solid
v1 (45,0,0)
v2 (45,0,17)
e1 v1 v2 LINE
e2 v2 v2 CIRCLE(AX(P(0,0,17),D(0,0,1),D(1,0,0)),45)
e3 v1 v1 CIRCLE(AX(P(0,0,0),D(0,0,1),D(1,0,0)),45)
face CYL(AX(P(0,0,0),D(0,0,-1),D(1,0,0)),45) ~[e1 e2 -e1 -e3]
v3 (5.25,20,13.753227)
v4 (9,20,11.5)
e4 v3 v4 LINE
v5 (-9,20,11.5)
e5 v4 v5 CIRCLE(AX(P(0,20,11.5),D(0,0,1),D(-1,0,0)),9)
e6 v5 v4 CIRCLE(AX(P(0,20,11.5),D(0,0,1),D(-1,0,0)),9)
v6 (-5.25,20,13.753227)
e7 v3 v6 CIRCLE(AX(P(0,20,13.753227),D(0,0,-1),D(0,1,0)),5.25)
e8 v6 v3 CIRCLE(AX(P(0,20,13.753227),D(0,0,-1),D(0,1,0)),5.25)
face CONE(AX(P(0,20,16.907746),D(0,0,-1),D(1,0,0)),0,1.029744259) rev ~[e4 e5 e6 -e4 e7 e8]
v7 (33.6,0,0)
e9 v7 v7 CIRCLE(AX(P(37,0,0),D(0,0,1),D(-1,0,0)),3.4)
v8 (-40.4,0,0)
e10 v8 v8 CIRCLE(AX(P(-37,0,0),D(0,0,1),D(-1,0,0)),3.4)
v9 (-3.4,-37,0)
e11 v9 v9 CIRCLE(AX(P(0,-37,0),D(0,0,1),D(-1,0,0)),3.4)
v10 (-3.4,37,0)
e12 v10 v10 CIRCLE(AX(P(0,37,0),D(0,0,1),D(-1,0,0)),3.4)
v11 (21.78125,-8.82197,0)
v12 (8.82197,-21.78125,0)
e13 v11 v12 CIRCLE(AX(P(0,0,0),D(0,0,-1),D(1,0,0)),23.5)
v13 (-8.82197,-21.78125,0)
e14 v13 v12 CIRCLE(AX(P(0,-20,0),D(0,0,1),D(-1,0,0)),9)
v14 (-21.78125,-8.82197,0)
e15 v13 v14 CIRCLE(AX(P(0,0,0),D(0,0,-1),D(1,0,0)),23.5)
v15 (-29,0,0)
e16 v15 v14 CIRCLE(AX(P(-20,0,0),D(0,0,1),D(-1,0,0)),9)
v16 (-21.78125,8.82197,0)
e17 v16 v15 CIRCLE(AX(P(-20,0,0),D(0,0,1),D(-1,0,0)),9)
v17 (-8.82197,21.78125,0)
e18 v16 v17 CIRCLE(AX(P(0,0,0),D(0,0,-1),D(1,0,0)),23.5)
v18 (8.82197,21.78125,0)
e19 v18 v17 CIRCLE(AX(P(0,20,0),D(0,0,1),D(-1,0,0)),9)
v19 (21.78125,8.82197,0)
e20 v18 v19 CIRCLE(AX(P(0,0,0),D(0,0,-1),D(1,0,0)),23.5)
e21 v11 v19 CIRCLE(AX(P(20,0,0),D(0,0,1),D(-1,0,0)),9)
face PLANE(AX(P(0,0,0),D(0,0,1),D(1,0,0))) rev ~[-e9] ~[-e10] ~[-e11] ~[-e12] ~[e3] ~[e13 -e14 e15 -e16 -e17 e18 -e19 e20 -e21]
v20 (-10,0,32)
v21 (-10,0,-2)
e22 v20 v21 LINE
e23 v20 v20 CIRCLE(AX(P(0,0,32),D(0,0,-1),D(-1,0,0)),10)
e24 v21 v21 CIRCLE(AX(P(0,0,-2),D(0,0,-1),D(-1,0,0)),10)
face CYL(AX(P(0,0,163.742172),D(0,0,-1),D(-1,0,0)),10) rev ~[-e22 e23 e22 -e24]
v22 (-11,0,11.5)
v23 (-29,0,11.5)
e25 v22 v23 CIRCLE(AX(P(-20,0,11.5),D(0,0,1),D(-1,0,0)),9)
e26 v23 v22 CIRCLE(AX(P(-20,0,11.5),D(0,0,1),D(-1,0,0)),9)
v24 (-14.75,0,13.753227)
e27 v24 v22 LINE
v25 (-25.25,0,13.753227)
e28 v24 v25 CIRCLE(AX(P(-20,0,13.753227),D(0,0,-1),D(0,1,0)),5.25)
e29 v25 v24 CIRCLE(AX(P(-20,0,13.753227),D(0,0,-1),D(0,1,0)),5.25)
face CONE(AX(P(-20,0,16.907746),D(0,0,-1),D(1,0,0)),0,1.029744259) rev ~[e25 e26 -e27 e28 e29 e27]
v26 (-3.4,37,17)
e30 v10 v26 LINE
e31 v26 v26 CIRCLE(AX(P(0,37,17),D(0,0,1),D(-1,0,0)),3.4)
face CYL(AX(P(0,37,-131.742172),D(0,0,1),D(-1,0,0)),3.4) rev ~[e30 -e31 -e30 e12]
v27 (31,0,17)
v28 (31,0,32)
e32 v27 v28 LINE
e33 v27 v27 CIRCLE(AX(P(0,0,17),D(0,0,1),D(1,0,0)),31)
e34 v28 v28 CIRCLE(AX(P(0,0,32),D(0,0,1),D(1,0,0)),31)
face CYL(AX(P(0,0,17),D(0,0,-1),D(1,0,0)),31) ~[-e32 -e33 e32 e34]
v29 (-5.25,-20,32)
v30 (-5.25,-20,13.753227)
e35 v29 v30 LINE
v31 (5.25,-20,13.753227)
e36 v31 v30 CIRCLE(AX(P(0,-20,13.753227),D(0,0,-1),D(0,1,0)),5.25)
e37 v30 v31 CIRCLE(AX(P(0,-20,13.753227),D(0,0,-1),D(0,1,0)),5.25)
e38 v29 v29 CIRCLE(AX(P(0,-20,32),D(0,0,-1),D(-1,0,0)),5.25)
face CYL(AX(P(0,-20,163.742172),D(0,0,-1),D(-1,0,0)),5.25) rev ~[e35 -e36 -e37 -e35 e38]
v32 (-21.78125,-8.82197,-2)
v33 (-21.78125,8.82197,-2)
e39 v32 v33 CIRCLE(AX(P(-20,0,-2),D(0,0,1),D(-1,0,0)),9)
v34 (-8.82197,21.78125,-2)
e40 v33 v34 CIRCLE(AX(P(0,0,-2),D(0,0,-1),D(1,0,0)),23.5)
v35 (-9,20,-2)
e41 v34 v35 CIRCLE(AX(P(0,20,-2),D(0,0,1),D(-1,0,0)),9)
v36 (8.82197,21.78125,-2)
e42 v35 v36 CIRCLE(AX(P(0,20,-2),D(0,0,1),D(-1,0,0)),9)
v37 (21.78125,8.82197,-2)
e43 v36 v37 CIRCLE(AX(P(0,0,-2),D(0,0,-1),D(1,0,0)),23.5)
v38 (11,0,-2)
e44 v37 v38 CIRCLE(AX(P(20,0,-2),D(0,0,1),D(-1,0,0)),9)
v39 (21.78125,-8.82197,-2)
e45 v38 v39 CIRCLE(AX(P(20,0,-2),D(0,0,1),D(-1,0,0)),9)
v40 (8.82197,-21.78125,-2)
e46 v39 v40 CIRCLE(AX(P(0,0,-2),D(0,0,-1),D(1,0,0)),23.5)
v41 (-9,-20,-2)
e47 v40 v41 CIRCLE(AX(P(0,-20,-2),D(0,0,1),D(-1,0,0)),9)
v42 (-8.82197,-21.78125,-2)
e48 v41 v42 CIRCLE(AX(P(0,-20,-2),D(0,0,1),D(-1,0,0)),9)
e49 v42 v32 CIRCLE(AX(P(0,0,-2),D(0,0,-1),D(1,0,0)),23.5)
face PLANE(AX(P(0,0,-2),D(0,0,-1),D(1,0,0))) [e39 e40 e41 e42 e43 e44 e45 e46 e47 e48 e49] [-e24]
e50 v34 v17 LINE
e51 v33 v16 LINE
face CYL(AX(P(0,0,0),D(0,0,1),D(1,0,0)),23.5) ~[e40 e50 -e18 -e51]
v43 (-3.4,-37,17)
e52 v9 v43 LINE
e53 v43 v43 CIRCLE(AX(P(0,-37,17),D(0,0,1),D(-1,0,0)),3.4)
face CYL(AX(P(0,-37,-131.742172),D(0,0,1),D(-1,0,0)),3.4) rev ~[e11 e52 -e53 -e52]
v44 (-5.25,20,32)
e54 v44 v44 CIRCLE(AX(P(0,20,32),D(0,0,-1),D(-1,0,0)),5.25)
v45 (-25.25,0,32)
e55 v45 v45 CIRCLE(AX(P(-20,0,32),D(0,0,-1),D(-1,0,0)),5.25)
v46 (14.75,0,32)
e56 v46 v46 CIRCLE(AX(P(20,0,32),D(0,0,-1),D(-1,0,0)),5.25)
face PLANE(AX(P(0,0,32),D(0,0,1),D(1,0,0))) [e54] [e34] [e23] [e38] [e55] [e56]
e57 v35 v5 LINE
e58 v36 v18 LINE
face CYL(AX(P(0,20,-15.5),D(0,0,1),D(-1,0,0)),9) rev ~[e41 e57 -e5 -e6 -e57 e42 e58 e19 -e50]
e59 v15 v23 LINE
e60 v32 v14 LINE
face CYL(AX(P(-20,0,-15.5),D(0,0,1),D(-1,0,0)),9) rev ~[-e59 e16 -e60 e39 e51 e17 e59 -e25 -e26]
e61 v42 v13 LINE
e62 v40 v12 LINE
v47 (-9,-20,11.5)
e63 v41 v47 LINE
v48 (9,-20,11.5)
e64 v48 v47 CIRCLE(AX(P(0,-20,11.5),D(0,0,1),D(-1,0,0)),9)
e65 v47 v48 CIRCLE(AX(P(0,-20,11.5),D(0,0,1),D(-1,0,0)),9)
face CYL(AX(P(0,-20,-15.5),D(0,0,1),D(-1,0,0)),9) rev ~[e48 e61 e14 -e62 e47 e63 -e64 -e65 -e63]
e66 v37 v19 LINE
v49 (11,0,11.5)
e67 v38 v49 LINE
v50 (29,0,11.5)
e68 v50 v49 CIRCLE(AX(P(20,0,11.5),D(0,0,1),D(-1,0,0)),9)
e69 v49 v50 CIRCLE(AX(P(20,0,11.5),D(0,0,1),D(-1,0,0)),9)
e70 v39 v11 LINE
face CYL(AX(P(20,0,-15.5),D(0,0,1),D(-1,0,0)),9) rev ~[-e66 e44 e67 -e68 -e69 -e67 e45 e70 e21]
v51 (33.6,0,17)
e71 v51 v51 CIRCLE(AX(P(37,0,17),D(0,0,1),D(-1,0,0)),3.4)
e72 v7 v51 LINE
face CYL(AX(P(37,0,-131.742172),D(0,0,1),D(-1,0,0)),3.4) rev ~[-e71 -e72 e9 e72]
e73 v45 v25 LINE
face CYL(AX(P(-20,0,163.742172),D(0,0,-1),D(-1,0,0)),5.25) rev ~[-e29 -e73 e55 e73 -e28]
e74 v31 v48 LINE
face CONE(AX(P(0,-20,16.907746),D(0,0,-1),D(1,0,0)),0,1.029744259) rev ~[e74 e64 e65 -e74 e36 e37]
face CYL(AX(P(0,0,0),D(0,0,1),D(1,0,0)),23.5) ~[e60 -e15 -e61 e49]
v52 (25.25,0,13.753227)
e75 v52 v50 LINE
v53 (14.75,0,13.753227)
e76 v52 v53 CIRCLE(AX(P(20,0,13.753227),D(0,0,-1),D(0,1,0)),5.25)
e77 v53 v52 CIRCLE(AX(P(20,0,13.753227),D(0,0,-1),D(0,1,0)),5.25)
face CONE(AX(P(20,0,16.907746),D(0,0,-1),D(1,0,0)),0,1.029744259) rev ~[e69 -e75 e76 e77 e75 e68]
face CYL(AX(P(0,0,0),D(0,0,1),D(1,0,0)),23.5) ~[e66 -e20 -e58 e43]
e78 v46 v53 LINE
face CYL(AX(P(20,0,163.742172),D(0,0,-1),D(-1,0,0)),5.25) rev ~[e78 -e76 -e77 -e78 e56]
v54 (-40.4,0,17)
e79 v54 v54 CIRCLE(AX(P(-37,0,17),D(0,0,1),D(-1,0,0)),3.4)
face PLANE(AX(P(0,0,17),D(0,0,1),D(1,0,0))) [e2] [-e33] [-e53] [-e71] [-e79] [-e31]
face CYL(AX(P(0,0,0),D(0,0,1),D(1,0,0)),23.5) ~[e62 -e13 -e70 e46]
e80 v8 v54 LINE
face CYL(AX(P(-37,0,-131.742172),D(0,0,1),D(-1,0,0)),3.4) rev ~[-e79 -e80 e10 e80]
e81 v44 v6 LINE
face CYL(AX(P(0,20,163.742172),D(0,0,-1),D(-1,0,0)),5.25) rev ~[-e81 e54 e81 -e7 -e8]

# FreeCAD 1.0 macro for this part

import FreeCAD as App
import Part
import Sketcher

V = App.Vector
Q = App.Units.Quantity

doc = App.newDocument("Part")
body = doc.addObject("PartDesign::Body", "Body")

# Sketch on XY plane
sketch1 = body.newObject("Sketcher::SketchObject", "Sketch")
sketch1.AttachmentSupport = (doc.getObject("XY_Plane"), [""])
sketch1.MapMode = "FlatFace"
sketch1.addGeometry(Part.Circle(V(0, 0, 0), V(0, 0, 1), 45), False)
sketch1.addConstraint(Sketcher.Constraint("Coincident", 0, 3, -1, 1))
sketch1.addConstraint(Sketcher.Constraint("Diameter", 0, Q("90 mm")))
pad1 = body.newObject("PartDesign::Pad", "Pad")
pad1.Profile = sketch1
pad1.Length = 17

# Sketch on XY plane
sketch2 = body.newObject("Sketcher::SketchObject", "Sketch001")
sketch2.AttachmentSupport = (doc.getObject("XY_Plane"), [""])
sketch2.MapMode = "FlatFace"
sketch2.AttachmentOffset = App.Placement(V(0, 0, 17), App.Rotation())
sketch2.addGeometry(Part.Circle(V(0, 0, 0), V(0, 0, 1), 31), False)
sketch2.addConstraint(Sketcher.Constraint("Coincident", 0, 3, -1, 1))
sketch2.addConstraint(Sketcher.Constraint("Diameter", 0, Q("62 mm")))
pad2 = body.newObject("PartDesign::Pad", "Pad001")
pad2.Profile = sketch2
pad2.Length = 15

# Sketch on XY plane
sketch3 = body.newObject("Sketcher::SketchObject", "Sketch002")
sketch3.AttachmentSupport = (doc.getObject("XY_Plane"), [""])
sketch3.MapMode = "FlatFace"
sketch3.addGeometry(Part.Circle(V(0, 0, 0), V(0, 0, 1), 24), False)
sketch3.addConstraint(Sketcher.Constraint("Coincident", 0, 3, -1, 1))
sketch3.addConstraint(Sketcher.Constraint("Diameter", 0, Q("47 mm")))
pad3 = body.newObject("PartDesign::Pad", "Pad002")
pad3.Profile = sketch3
pad3.Length = 2
pad3.Reversed = True

# Sketch on XY plane
sketch4 = body.newObject("Sketcher::SketchObject", "Sketch003")
sketch4.AttachmentSupport = (doc.getObject("XY_Plane"), [""])
sketch4.MapMode = "FlatFace"
sketch4.AttachmentOffset = App.Placement(V(0, 0, -2), App.Rotation())
sketch4.addGeometry(Part.Circle(V(-20, 0, 0), V(0, 0, 1), 9), False)
sketch4.addGeometry(Part.Circle(V(0, -20, 0), V(0, 0, 1), 9), False)
sketch4.addGeometry(Part.Circle(V(20, 0, 0), V(0, 0, 1), 9), False)
sketch4.addGeometry(Part.Circle(V(0, 20, 0), V(0, 0, 1), 9), False)
sketch4.addConstraint(Sketcher.Constraint("Equal", 0, 1))
sketch4.addConstraint(Sketcher.Constraint("Equal", 1, 2))
sketch4.addConstraint(Sketcher.Constraint("Equal", 2, 3))
sketch4.addConstraint(Sketcher.Constraint("Symmetric", 0, 3, 2, 3, -1, 1))
sketch4.addConstraint(Sketcher.Constraint("Symmetric", 1, 3, 3, 3, -1, 1))
sketch4.addConstraint(Sketcher.Constraint("PointOnObject", 0, 3, -1))
sketch4.addConstraint(Sketcher.Constraint("PointOnObject", 1, 3, -2))
sketch4.addConstraint(Sketcher.Constraint("Diameter", 0, Q("18 mm")))
sketch4.addConstraint(Sketcher.Constraint("DistanceX", 0, 3, -1, 1, Q("20 mm")))
sketch4.addConstraint(Sketcher.Constraint("DistanceY", 1, 3, -1, 1, Q("20 mm")))
doc.recompute()
hole = body.newObject("PartDesign::Hole", "Hole")
hole.Profile = sketch4
hole.ThreadType = "None"
hole.Diameter = 18
hole.DepthType = "Dimension"
hole.Depth = 13.5
hole.DrillPoint = "Angled"
hole.DrillPointAngle = 118
hole.Reversed = True

# Sketch on XY plane
sketch5 = body.newObject("Sketcher::SketchObject", "Sketch004")
sketch5.AttachmentSupport = (doc.getObject("XY_Plane"), [""])
sketch5.MapMode = "FlatFace"
sketch5.AttachmentOffset = App.Placement(V(0, 0, 32), App.Rotation())
sketch5.addGeometry(Part.Circle(V(0, 0, 0), V(0, 0, 1), 10), False)
sketch5.addConstraint(Sketcher.Constraint("Coincident", 0, 3, -1, 1))
sketch5.addConstraint(Sketcher.Constraint("Diameter", 0, Q("20 mm")))
doc.recompute()
hole2 = body.newObject("PartDesign::Hole", "Hole001")
hole2.Profile = sketch5
hole2.ThreadType = "None"
hole2.Diameter = 20
hole2.DepthType = "ThroughAll"

# Sketch on XY plane
sketch6 = body.newObject("Sketcher::SketchObject", "Sketch005")
sketch6.AttachmentSupport = (doc.getObject("XY_Plane"), [""])
sketch6.MapMode = "FlatFace"
sketch6.AttachmentOffset = App.Placement(V(0, 0, 32), App.Rotation())
sketch6.addGeometry(Part.Circle(V(-20, 0, 0), V(0, 0, 1), 5), False)
sketch6.addGeometry(Part.Circle(V(0, 20, 0), V(0, 0, 1), 5), False)
sketch6.addGeometry(Part.Circle(V(20, 0, 0), V(0, 0, 1), 5), False)
sketch6.addGeometry(Part.Circle(V(0, -20, 0), V(0, 0, 1), 5), False)
sketch6.addConstraint(Sketcher.Constraint("Equal", 0, 1))
sketch6.addConstraint(Sketcher.Constraint("Equal", 1, 2))
sketch6.addConstraint(Sketcher.Constraint("Equal", 2, 3))
sketch6.addConstraint(Sketcher.Constraint("Symmetric", 0, 3, 2, 3, -1, 1))
sketch6.addConstraint(Sketcher.Constraint("Symmetric", 1, 3, 3, 3, -1, 1))
sketch6.addConstraint(Sketcher.Constraint("PointOnObject", 0, 3, -1))
sketch6.addConstraint(Sketcher.Constraint("PointOnObject", 1, 3, -2))
sketch6.addConstraint(Sketcher.Constraint("Diameter", 0, Q("10.5 mm")))
sketch6.addConstraint(Sketcher.Constraint("DistanceX", 0, 3, -1, 1, Q("20 mm")))
sketch6.addConstraint(Sketcher.Constraint("DistanceY", -1, 1, 1, 3, Q("20 mm")))
doc.recompute()
hole3 = body.newObject("PartDesign::Hole", "Hole002")
hole3.Profile = sketch6
hole3.ThreadType = "None"
hole3.Diameter = 10.5
hole3.DepthType = "ThroughAll"

# Sketch on XY plane
sketch7 = body.newObject("Sketcher::SketchObject", "Sketch006")
sketch7.AttachmentSupport = (doc.getObject("XY_Plane"), [""])
sketch7.MapMode = "FlatFace"
sketch7.addGeometry(Part.Circle(V(0, -37, 0), V(0, 0, 1), 3.4), False)
sketch7.addGeometry(Part.Circle(V(-37, 0, 0), V(0, 0, 1), 3.4), False)
sketch7.addGeometry(Part.Circle(V(0, 37, 0), V(0, 0, 1), 3.4), False)
sketch7.addGeometry(Part.Circle(V(37, 0, 0), V(0, 0, 1), 3.4), False)
sketch7.addConstraint(Sketcher.Constraint("Equal", 0, 1))
sketch7.addConstraint(Sketcher.Constraint("Equal", 1, 2))
sketch7.addConstraint(Sketcher.Constraint("Equal", 2, 3))
sketch7.addConstraint(Sketcher.Constraint("Symmetric", 0, 3, 2, 3, -1, 1))
sketch7.addConstraint(Sketcher.Constraint("Symmetric", 1, 3, 3, 3, -1, 1))
sketch7.addConstraint(Sketcher.Constraint("PointOnObject", 0, 3, -2))
sketch7.addConstraint(Sketcher.Constraint("PointOnObject", 1, 3, -1))
sketch7.addConstraint(Sketcher.Constraint("Diameter", 0, Q("6.8 mm")))
sketch7.addConstraint(Sketcher.Constraint("DistanceY", 0, 3, -1, 1, Q("37 mm")))
sketch7.addConstraint(Sketcher.Constraint("DistanceX", 1, 3, -1, 1, Q("37 mm")))
doc.recompute()
hole4 = body.newObject("PartDesign::Hole", "Hole003")
hole4.Profile = sketch7
hole4.ThreadType = "None"
hole4.Diameter = 6.8
hole4.DepthType = "ThroughAll"
hole4.Reversed = True

doc.recompute()
